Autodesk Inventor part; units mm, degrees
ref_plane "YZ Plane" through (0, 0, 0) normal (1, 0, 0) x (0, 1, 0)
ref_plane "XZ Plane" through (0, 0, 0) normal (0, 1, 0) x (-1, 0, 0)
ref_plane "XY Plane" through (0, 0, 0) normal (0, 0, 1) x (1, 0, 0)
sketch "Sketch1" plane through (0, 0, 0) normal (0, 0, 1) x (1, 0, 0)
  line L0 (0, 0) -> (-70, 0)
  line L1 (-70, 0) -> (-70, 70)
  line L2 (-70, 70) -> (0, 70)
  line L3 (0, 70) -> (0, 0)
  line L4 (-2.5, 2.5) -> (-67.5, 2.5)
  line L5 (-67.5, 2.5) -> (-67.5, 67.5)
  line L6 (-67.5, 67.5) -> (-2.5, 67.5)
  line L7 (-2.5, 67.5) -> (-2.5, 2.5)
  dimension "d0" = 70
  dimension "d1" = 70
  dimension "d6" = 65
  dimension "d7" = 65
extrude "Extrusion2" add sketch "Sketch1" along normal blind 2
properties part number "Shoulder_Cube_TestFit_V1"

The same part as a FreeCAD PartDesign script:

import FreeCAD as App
import Part
import Sketcher

doc = App.newDocument("Part")
body = doc.addObject("PartDesign::Body", "Body")

sketch1 = body.newObject("Sketcher::SketchObject", "Sketch")
sketch1.AttachmentSupport = (doc.getObject("XY_Plane"), [""])
sketch1.MapMode = "FlatFace"
sketch1.addGeometry(Part.LineSegment(App.Vector(-70, 0, 0), App.Vector(0, 0, 0)), False)
sketch1.addGeometry(Part.LineSegment(App.Vector(0, 0, 0), App.Vector(0, 70, 0)), False)
sketch1.addGeometry(Part.LineSegment(App.Vector(0, 70, 0), App.Vector(-70, 70, 0)), False)
sketch1.addGeometry(Part.LineSegment(App.Vector(-70, 70, 0), App.Vector(-70, 0, 0)), False)
sketch1.addGeometry(Part.LineSegment(App.Vector(-2.5, 67.5, 0), App.Vector(-2.5, 2.5, 0)), False)
sketch1.addGeometry(Part.LineSegment(App.Vector(-2.5, 2.5, 0), App.Vector(-67.5, 2.5, 0)), False)
sketch1.addGeometry(Part.LineSegment(App.Vector(-67.5, 2.5, 0), App.Vector(-67.5, 67.5, 0)), False)
sketch1.addGeometry(Part.LineSegment(App.Vector(-67.5, 67.5, 0), App.Vector(-2.5, 67.5, 0)), False)
sketch1.addConstraint(Sketcher.Constraint("Coincident", 0, 2, 1, 1))
sketch1.addConstraint(Sketcher.Constraint("Coincident", 1, 2, 2, 1))
sketch1.addConstraint(Sketcher.Constraint("Coincident", 2, 2, 3, 1))
sketch1.addConstraint(Sketcher.Constraint("Coincident", 3, 2, 0, 1))
sketch1.addConstraint(Sketcher.Constraint("Coincident", 4, 2, 5, 1))
sketch1.addConstraint(Sketcher.Constraint("Coincident", 5, 2, 6, 1))
sketch1.addConstraint(Sketcher.Constraint("Coincident", 6, 2, 7, 1))
sketch1.addConstraint(Sketcher.Constraint("Coincident", 7, 2, 4, 1))
sketch1.addConstraint(Sketcher.Constraint("Horizontal", 0))
sketch1.addConstraint(Sketcher.Constraint("Vertical", 1))
sketch1.addConstraint(Sketcher.Constraint("Horizontal", 2))
sketch1.addConstraint(Sketcher.Constraint("Vertical", 3))
sketch1.addConstraint(Sketcher.Constraint("Vertical", 4))
sketch1.addConstraint(Sketcher.Constraint("Horizontal", 5))
sketch1.addConstraint(Sketcher.Constraint("Vertical", 6))
sketch1.addConstraint(Sketcher.Constraint("Horizontal", 7))
sketch1.addConstraint(Sketcher.Constraint("Coincident", 0, 2, -1, 1))
sketch1.addConstraint(Sketcher.Constraint("Equal", 2, 1))
sketch1.addConstraint(Sketcher.Constraint("Equal", 7, 4))
sketch1.addConstraint(Sketcher.Constraint("DistanceX", 0, 1, 0, 2, 70.0))
sketch1.addConstraint(Sketcher.Constraint("DistanceX", 5, 2, 5, 1, 65.0))
sketch1.addConstraint(Sketcher.Constraint("DistanceX", 4, 2, -1, 1, 2.5))
sketch1.addConstraint(Sketcher.Constraint("DistanceY", -1, 1, 4, 2, 2.5))
pad1 = body.newObject("PartDesign::Pad", "Pad")
pad1.Profile = sketch1
pad1.Length = 2

doc.recompute()
